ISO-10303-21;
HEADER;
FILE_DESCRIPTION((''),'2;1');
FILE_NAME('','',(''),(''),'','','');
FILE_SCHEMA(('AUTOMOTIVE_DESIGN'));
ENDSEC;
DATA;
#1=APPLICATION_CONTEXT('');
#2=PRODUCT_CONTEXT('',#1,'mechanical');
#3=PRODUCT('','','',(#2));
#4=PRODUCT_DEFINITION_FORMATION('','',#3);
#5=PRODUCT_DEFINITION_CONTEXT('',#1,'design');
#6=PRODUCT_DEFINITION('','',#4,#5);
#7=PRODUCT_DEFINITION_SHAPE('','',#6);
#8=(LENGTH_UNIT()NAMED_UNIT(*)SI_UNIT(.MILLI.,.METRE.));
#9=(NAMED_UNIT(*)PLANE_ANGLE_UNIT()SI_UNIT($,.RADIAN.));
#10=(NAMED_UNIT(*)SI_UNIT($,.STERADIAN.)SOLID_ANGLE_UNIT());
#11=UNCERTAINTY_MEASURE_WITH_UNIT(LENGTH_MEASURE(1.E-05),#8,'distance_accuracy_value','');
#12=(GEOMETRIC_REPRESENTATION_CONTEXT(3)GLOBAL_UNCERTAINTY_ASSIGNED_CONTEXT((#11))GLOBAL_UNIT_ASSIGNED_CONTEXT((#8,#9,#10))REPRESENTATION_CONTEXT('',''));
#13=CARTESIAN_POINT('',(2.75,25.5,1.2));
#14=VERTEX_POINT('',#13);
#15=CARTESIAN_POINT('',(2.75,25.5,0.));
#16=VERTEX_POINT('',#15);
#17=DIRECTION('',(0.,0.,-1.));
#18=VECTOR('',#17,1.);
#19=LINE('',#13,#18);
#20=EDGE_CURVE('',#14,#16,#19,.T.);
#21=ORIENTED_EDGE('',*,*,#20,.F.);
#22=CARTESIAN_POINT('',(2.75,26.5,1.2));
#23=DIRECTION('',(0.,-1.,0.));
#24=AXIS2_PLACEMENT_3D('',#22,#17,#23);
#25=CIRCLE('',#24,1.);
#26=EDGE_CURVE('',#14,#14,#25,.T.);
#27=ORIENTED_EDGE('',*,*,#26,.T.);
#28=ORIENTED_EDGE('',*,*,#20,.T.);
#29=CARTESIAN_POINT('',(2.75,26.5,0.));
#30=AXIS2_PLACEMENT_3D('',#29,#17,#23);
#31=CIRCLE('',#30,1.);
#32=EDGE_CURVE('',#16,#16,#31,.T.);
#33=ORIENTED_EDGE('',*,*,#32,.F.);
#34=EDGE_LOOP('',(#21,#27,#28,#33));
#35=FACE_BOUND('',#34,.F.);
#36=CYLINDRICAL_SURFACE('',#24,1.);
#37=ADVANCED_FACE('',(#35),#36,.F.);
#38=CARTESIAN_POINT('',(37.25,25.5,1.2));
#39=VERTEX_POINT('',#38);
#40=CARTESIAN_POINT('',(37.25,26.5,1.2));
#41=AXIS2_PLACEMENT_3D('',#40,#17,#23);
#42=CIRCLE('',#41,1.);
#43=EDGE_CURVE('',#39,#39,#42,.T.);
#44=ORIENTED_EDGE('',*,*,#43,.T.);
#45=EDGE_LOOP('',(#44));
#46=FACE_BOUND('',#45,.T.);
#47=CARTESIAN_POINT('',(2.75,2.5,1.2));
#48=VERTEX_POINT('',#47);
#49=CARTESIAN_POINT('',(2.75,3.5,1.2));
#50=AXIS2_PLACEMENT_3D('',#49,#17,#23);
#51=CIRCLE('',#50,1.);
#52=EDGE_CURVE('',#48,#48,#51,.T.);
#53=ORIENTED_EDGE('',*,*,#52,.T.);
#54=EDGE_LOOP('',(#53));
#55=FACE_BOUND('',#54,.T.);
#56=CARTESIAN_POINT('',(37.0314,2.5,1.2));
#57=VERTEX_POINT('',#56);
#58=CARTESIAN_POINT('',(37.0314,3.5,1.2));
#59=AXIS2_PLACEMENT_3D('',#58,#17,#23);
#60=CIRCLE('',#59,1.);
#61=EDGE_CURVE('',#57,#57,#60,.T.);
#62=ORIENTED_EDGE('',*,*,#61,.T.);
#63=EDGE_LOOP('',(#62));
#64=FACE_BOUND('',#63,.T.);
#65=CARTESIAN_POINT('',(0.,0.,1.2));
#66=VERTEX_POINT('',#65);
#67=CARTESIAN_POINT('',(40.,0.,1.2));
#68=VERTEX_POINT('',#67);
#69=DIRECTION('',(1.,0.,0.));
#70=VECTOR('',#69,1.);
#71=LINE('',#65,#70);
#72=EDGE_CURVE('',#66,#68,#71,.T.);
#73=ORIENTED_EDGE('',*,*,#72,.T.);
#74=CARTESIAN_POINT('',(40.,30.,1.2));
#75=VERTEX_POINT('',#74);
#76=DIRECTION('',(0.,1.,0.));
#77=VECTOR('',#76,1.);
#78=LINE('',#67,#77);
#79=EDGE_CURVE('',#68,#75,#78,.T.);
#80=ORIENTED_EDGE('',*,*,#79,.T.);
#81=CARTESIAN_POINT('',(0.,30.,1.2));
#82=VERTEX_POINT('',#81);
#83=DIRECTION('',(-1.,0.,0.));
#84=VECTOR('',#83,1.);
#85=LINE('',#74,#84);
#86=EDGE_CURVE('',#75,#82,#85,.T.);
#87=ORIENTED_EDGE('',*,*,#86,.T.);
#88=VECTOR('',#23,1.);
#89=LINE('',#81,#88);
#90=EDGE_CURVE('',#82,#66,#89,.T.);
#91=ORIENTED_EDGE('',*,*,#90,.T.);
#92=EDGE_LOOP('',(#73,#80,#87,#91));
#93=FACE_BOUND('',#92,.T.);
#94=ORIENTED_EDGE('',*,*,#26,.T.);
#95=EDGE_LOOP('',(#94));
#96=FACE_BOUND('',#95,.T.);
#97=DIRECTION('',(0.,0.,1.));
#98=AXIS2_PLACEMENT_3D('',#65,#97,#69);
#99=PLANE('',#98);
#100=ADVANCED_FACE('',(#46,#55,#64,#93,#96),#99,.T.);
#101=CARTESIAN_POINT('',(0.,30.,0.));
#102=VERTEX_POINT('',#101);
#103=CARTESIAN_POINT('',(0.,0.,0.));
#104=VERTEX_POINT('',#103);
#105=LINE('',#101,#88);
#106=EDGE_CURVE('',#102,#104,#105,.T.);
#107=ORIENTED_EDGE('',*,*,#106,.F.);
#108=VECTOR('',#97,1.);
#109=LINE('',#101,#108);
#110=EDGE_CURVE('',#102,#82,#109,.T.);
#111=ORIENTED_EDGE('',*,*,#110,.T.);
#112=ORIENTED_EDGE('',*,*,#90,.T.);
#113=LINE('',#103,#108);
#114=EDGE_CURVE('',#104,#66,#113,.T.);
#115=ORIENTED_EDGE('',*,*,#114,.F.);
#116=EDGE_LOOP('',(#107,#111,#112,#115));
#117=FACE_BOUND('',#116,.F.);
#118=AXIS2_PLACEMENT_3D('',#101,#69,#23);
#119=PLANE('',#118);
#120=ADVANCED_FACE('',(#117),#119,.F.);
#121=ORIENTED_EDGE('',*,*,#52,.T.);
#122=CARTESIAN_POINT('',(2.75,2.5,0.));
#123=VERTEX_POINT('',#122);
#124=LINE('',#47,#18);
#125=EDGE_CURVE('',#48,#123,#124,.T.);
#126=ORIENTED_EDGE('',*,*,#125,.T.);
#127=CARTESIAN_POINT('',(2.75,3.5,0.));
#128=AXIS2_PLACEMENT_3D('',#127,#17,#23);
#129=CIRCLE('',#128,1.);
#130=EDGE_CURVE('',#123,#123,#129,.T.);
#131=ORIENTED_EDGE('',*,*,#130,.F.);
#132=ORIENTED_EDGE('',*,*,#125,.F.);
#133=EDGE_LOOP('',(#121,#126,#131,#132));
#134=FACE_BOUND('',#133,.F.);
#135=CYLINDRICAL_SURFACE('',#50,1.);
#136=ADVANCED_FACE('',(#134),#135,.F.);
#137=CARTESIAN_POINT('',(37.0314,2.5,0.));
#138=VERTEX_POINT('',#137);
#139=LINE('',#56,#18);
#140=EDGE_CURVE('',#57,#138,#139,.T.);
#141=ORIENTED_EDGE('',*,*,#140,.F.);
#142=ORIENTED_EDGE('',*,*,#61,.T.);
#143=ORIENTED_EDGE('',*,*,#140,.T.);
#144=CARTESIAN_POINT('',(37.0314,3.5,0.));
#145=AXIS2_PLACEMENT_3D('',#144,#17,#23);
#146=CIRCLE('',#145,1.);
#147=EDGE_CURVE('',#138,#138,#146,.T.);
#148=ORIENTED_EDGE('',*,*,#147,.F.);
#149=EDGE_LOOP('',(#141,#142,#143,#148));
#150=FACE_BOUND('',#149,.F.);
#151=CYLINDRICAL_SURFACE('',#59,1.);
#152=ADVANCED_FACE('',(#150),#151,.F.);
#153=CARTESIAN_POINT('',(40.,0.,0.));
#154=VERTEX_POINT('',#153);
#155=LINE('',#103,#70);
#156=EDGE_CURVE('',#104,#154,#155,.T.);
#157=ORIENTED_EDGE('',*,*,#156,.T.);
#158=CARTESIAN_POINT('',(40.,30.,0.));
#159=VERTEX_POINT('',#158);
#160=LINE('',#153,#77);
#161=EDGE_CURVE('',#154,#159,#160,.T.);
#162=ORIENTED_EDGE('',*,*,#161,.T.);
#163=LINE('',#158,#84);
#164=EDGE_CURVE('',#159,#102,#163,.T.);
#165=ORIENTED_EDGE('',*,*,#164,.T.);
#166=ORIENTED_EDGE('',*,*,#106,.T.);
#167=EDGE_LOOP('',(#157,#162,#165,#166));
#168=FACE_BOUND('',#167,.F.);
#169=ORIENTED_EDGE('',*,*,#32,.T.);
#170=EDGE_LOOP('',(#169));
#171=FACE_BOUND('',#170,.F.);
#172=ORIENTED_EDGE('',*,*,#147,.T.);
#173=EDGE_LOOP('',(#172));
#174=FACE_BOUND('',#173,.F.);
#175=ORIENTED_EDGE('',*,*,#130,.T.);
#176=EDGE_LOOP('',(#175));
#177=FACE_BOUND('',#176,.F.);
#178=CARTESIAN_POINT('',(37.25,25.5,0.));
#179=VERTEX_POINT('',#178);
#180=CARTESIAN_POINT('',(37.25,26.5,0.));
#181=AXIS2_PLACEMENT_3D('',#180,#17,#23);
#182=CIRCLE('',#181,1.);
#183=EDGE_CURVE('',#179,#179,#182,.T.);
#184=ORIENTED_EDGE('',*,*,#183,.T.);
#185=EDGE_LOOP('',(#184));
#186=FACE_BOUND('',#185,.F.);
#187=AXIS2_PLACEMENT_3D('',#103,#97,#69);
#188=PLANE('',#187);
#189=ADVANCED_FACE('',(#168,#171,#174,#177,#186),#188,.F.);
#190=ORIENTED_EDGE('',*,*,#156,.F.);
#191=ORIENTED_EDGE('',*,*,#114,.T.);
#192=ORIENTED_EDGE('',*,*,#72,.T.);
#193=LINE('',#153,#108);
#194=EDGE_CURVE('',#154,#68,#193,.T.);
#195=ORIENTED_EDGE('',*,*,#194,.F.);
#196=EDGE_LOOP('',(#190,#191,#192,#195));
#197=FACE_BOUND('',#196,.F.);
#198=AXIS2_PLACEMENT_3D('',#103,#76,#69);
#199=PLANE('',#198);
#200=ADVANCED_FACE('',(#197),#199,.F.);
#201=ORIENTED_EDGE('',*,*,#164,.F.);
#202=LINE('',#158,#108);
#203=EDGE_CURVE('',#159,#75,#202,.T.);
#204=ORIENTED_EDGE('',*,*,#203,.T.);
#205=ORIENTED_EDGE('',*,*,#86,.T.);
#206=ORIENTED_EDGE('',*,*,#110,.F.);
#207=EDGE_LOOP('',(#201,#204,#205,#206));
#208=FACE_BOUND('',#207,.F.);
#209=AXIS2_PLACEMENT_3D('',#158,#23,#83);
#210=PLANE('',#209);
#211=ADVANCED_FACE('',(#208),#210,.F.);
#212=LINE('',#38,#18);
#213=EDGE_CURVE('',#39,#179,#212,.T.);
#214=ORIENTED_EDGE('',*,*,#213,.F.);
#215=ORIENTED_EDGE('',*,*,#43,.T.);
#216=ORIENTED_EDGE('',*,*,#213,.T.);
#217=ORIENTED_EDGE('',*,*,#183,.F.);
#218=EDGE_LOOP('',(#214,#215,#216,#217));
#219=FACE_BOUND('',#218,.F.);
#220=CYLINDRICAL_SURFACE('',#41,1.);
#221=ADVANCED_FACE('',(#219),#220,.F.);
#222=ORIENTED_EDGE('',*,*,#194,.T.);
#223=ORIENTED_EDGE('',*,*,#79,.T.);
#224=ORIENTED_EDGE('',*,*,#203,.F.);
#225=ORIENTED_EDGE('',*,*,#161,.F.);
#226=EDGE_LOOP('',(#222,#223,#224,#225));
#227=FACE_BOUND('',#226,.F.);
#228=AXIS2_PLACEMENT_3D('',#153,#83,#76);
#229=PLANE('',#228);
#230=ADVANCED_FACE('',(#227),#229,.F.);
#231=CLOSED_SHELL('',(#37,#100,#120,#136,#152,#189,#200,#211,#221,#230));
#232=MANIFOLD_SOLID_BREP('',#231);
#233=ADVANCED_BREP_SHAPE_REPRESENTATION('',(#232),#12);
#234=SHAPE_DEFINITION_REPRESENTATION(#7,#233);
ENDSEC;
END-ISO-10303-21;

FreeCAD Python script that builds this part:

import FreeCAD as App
import Part
import Sketcher

V = App.Vector

doc = App.newDocument("Part")
params = doc.addObject("Spreadsheet::Sheet", "Params")
for row, (alias, value) in enumerate([
    ("sketch1_width", "40 mm"),
    ("sketch1_height", "30 mm"),
    ("pad1_length", "1.2 mm"),
    ("sketch2_diameter", "2 mm"),
    ("hole_diameter", "2 mm"),
    ("hole_depth", "1.5 mm"),
], start=1):
    params.set(f"A{row}", alias)
    params.set(f"B{row}", "=" + value)
    params.setAlias(f"B{row}", alias)

body = doc.addObject("PartDesign::Body", "Body")

# Sketch on XY plane
sketch1 = body.newObject("Sketcher::SketchObject", "Sketch")
sketch1.AttachmentSupport = (doc.getObject("XY_Plane"), [""])
sketch1.MapMode = "FlatFace"
sketch1.addGeometry(Part.LineSegment(V(0, 30, 0), V(0, 0, 0)), False)
sketch1.addGeometry(Part.LineSegment(V(0, 0, 0), V(40, 0, 0)), False)
sketch1.addGeometry(Part.LineSegment(V(40, 0, 0), V(40, 30, 0)), False)
sketch1.addGeometry(Part.LineSegment(V(40, 30, 0), V(0, 30, 0)), False)
sketch1.addConstraint(Sketcher.Constraint("Coincident", 0, 2, 1, 1))
sketch1.addConstraint(Sketcher.Constraint("Coincident", 1, 2, 2, 1))
sketch1.addConstraint(Sketcher.Constraint("Coincident", 2, 2, 3, 1))
sketch1.addConstraint(Sketcher.Constraint("Coincident", 3, 2, 0, 1))
sketch1.addConstraint(Sketcher.Constraint("Vertical", 0))
sketch1.addConstraint(Sketcher.Constraint("Horizontal", 1))
sketch1.addConstraint(Sketcher.Constraint("Vertical", 2))
sketch1.addConstraint(Sketcher.Constraint("Horizontal", 3))
sketch1.addConstraint(Sketcher.Constraint("Coincident", 0, 2, -1, 1))
sketch1.addConstraint(Sketcher.Constraint("DistanceX", 1, 1, 1, 2, 40.0))
sketch1.addConstraint(Sketcher.Constraint("DistanceY", 0, 2, 0, 1, 30.0))
sketch1.setExpression("Constraints[9]", "Params.sketch1_width")
sketch1.setExpression("Constraints[10]", "Params.sketch1_height")
pad1 = body.newObject("PartDesign::Pad", "Pad")
pad1.Profile = sketch1
pad1.setExpression("Length", "Params.pad1_length")

# Sketch on XY plane
sketch2 = body.newObject("Sketcher::SketchObject", "Sketch001")
sketch2.AttachmentSupport = (doc.getObject("XY_Plane"), [""])
sketch2.MapMode = "FlatFace"
sketch2.AttachmentOffset = App.Placement(V(0, 0, 1.2), App.Rotation())
sketch2.addGeometry(Part.Circle(V(2.8, 3.5, 0), V(0, 0, 1), 1), False)
sketch2.addGeometry(Part.Circle(V(37, 3.5, 0), V(0, 0, 1), 1), False)
sketch2.addGeometry(Part.Circle(V(37.2, 26.5, 0), V(0, 0, 1), 1), False)
sketch2.addGeometry(Part.Circle(V(2.8, 26.5, 0), V(0, 0, 1), 1), False)
sketch2.addConstraint(Sketcher.Constraint("Equal", 0, 1))
sketch2.addConstraint(Sketcher.Constraint("Equal", 1, 2))
sketch2.addConstraint(Sketcher.Constraint("Equal", 2, 3))
sketch2.addConstraint(Sketcher.Constraint("Horizontal", 0, 3, 1, 3))
sketch2.addConstraint(Sketcher.Constraint("Horizontal", 2, 3, 3, 3))
sketch2.addConstraint(Sketcher.Constraint("Vertical", 0, 3, 3, 3))
sketch2.addConstraint(Sketcher.Constraint("Diameter", 0, 2.0))
sketch2.addConstraint(Sketcher.Constraint("DistanceY", 1, 3, 2, 3, 23.0))
sketch2.addConstraint(Sketcher.Constraint("DistanceY", -1, 1, 0, 3, 3.5))
sketch2.addConstraint(Sketcher.Constraint("DistanceX", 0, 3, 2, 3, 34.5))
sketch2.addConstraint(Sketcher.Constraint("DistanceX", -1, 1, 0, 3, 2.75))
sketch2.addConstraint(Sketcher.Constraint("DistanceX", -1, 1, 1, 3, 37.0314))
sketch2.setExpression("Constraints[6]", "Params.sketch2_diameter")
doc.recompute()
hole = body.newObject("PartDesign::Hole", "Hole")
hole.Profile = sketch2
hole.ThreadType = "None"
hole.setExpression("Diameter", "Params.hole_diameter")
hole.DepthType = "Dimension"
hole.setExpression("Depth", "Params.hole_depth")
hole.DrillPoint = "Flat"

doc.recompute()
